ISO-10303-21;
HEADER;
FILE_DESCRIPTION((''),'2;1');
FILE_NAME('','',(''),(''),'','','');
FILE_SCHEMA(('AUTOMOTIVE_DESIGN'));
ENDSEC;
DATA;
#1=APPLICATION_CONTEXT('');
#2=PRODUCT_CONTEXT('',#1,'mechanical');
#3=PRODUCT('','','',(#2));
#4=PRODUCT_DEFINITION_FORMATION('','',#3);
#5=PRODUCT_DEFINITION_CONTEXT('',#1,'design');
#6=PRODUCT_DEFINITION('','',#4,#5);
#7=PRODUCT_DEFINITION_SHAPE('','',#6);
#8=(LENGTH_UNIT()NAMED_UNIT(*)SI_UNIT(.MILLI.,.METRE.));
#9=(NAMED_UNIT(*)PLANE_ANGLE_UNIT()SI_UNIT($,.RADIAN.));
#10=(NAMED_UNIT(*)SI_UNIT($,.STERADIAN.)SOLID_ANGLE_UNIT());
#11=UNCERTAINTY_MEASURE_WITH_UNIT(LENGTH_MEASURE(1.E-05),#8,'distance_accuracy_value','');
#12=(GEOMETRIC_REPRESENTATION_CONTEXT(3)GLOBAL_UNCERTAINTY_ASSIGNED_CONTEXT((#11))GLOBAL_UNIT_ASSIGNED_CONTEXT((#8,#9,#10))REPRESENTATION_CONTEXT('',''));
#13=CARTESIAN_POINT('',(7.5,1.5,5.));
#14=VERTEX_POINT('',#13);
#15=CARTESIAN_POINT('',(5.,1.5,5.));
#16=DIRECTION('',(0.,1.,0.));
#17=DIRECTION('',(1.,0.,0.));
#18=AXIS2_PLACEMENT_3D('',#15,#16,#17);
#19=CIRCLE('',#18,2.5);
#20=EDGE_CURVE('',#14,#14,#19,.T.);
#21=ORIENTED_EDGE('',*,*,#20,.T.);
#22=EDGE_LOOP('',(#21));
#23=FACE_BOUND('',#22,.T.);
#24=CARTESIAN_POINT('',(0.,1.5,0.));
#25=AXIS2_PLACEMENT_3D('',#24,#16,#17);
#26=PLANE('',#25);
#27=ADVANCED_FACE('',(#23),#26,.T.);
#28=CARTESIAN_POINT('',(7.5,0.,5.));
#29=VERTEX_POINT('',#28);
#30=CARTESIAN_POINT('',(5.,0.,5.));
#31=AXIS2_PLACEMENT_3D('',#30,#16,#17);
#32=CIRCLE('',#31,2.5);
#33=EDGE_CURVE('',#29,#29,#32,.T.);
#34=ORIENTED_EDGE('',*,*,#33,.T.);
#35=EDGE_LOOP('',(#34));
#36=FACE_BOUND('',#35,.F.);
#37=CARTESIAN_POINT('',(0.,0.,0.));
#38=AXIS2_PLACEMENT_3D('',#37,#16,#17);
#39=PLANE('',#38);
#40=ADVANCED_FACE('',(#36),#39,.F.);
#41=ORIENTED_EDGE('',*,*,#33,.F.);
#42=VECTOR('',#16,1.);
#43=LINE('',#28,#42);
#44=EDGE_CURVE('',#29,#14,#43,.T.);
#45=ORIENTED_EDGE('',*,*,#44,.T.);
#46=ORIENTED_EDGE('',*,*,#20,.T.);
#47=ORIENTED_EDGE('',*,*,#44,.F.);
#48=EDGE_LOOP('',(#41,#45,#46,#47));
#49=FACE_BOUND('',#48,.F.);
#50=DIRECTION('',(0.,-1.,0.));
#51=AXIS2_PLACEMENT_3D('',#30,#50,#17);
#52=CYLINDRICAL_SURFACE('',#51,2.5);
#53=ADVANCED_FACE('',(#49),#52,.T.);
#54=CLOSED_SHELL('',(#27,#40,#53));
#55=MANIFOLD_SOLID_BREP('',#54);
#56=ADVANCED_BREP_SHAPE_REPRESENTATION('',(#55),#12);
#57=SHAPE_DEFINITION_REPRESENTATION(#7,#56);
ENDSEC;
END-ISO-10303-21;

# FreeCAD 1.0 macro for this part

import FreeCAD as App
import Part
import Sketcher

doc = App.newDocument("Part")
body = doc.addObject("PartDesign::Body", "Body")

# Sketch on XZ plane
sketch1 = body.newObject("Sketcher::SketchObject", "Sketch")
sketch1.AttachmentSupport = (doc.getObject("XZ_Plane"), [""])
sketch1.MapMode = "FlatFace"
sketch1.addGeometry(Part.Circle(App.Vector(5, 5, 0), App.Vector(0, 0, 1), 2.5), False)
sketch1.addConstraint([
    Sketcher.Constraint("Diameter", 0, 5.0),
    Sketcher.Constraint("DistanceX", -1, 1, 0, 3, 5.0),
    Sketcher.Constraint("DistanceY", -1, 1, 0, 3, 5.0),
])
pad1 = body.newObject("PartDesign::Pad", "Pad")
pad1.Profile = sketch1
pad1.Length = 1.5
pad1.Reversed = True

doc.recompute()
